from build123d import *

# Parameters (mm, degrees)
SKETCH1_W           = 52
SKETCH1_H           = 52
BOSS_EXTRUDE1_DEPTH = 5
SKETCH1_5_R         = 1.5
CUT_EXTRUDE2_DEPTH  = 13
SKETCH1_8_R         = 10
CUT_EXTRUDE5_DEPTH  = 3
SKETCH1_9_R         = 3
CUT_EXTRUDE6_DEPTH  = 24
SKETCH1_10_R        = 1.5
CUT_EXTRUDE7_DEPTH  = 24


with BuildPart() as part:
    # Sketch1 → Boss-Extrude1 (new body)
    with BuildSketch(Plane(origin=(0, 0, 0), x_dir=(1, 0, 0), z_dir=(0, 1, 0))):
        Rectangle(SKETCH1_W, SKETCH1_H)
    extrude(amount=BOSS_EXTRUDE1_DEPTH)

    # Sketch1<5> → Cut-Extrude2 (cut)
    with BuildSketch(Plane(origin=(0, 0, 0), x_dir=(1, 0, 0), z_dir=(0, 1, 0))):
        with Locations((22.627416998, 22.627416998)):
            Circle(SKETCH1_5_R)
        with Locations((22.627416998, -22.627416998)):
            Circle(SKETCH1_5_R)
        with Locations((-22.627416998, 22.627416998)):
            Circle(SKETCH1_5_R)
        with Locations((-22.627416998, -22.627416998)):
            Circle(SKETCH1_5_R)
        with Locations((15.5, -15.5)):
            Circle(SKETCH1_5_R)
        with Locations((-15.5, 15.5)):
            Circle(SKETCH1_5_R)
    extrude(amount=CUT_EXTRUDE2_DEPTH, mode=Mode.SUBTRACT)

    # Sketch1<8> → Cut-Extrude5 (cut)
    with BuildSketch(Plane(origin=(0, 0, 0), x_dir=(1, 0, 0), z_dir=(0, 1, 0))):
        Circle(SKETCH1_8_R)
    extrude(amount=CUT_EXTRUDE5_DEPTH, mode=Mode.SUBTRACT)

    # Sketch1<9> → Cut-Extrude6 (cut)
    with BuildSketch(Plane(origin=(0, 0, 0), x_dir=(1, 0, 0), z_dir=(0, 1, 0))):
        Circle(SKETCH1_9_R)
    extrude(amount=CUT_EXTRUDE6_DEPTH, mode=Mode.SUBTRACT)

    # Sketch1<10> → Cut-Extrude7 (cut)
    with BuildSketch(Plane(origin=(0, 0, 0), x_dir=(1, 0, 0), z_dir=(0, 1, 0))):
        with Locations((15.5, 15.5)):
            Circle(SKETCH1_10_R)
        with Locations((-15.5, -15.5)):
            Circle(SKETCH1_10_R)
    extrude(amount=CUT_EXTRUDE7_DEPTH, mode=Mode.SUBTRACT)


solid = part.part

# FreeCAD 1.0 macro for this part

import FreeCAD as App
import Part
import Sketcher
from FreeCAD import Vector
Q = App.Units.Quantity


def add_polygon(sketch, points):
    """Adds a closed chain of lines whose ends are joined by coincident constraints."""
    first, n = sketch.GeometryCount, len(points)
    for a, b in zip(points, points[1:] + points[:1]):
        sketch.addGeometry(Part.LineSegment(App.Vector(*a, 0), App.Vector(*b, 0)), False)
    for i in range(n):
        sketch.addConstraint(Sketcher.Constraint("Coincident", first + i, 2, first + (i + 1) % n, 1))

doc = App.newDocument("Part")
body = doc.addObject("PartDesign::Body", "Body")

# Sketch on XZ plane
sketch1 = doc.addObject("Sketcher::SketchObject", "Sketch")
body.addObject(sketch1)
sketch1.AttachmentSupport = (doc.XZ_Plane, [""])
sketch1.MapMode = "FlatFace"
add_polygon(sketch1, [(-26, -26), (-26, 26), (26, 26), (26, -26)])  # lines 0-3
sketch1.addConstraint([
    Sketcher.Constraint("Vertical", 0),
    Sketcher.Constraint("Horizontal", 1),
    Sketcher.Constraint("Vertical", 2),
    Sketcher.Constraint("Horizontal", 3),
    Sketcher.Constraint("Symmetric", 0, 2, 2, 2, -1, 1),
    Sketcher.Constraint("Equal", 3, 0),
    Sketcher.Constraint("DistanceX", 1, 1, 1, 2, Q("52 mm")),
])
pad1 = doc.addObject("PartDesign::Pad", "Pad")
body.addObject(pad1)
pad1.Profile = sketch1
pad1.Length = 5
pad1.Reversed = True

# Sketch on XZ plane
sketch2 = doc.addObject("Sketcher::SketchObject", "Sketch001")
body.addObject(sketch2)
sketch2.AttachmentSupport = (doc.XZ_Plane, [""])
sketch2.MapMode = "FlatFace"
sketch2.addGeometry([
    Part.Circle(Vector(22.627417, -22.627417, 0), Vector(0, 0, 1), 1.5),  # 0
    Part.Circle(Vector(22.627417, 22.627417, 0), Vector(0, 0, 1), 1.5),  # 1
    Part.Circle(Vector(-22.627417, -22.627417, 0), Vector(0, 0, 1), 1.5),  # 2
    Part.Circle(Vector(-22.627417, 22.627417, 0), Vector(0, 0, 1), 1.5),  # 3
    Part.Circle(Vector(15.5, 15.5, 0), Vector(0, 0, 1), 1.5),  # 4
    Part.Circle(Vector(-15.5, -15.5, 0), Vector(0, 0, 1), 1.5),  # 5
], False)
sketch2.addConstraint([
    Sketcher.Constraint("Equal", 0, 1),
    Sketcher.Constraint("Equal", 1, 2),
    Sketcher.Constraint("Equal", 2, 3),
    Sketcher.Constraint("Equal", 3, 4),
    Sketcher.Constraint("Equal", 4, 5),
    Sketcher.Constraint("Symmetric", 1, 3, 2, 3, -1, 1),
    Sketcher.Constraint("Symmetric", 0, 3, 3, 3, -1, 1),
    Sketcher.Constraint("Symmetric", 4, 3, 5, 3, -1, 1),
    Sketcher.Constraint("Symmetric", 0, 3, 2, 3, -2),
    Sketcher.Constraint("Diameter", 0, Q("3 mm")),
    Sketcher.Constraint("DistanceX", 5, 3, 4, 3, Q("31 mm")),
    Sketcher.Constraint("DistanceY", 5, 3, 4, 3, Q("31 mm")),
    Sketcher.Constraint("DistanceX", -1, 1, 0, 3, Q("22.627417 mm")),
    Sketcher.Constraint("DistanceY", 0, 3, -1, 1, Q("22.627417 mm")),
])
pocket1 = doc.addObject("PartDesign::Pocket", "Pocket")
body.addObject(pocket1)
pocket1.Profile = sketch2
pocket1.Length = 13

# Sketch on XZ plane
sketch3 = doc.addObject("Sketcher::SketchObject", "Sketch002")
body.addObject(sketch3)
sketch3.AttachmentSupport = (doc.XZ_Plane, [""])
sketch3.MapMode = "FlatFace"
sketch3.addGeometry(Part.Circle(Vector(0, 0, 0), Vector(0, 0, 1), 10), False)
sketch3.addConstraint([
    Sketcher.Constraint("Coincident", 0, 3, -1, 1),
    Sketcher.Constraint("Diameter", 0, Q("20 mm")),
])
pocket2 = doc.addObject("PartDesign::Pocket", "Pocket001")
body.addObject(pocket2)
pocket2.Profile = sketch3
pocket2.Length = 3

# Sketch on XZ plane
sketch4 = doc.addObject("Sketcher::SketchObject", "Sketch003")
body.addObject(sketch4)
sketch4.AttachmentSupport = (doc.XZ_Plane, [""])
sketch4.MapMode = "FlatFace"
sketch4.addGeometry(Part.Circle(Vector(0, 0, 0), Vector(0, 0, 1), 3), False)
sketch4.addConstraint([
    Sketcher.Constraint("Coincident", 0, 3, -1, 1),
    Sketcher.Constraint("Diameter", 0, Q("6 mm")),
])
pocket3 = doc.addObject("PartDesign::Pocket", "Pocket002")
body.addObject(pocket3)
pocket3.Profile = sketch4
pocket3.Length = 24

# Sketch on XZ plane
sketch5 = doc.addObject("Sketcher::SketchObject", "Sketch004")
body.addObject(sketch5)
sketch5.AttachmentSupport = (doc.XZ_Plane, [""])
sketch5.MapMode = "FlatFace"
sketch5.addGeometry([
    Part.Circle(Vector(15.5, -15.5, 0), Vector(0, 0, 1), 1.5),
    Part.Circle(Vector(-15.5, 15.5, 0), Vector(0, 0, 1), 1.5),
], False)
sketch5.addConstraint([
    Sketcher.Constraint("Equal", 0, 1),
    Sketcher.Constraint("Symmetric", 0, 3, 1, 3, -1, 1),
    Sketcher.Constraint("Diameter", 0, Q("3 mm")),
    Sketcher.Constraint("DistanceX", 1, 3, 0, 3, Q("31 mm")),
    Sketcher.Constraint("DistanceY", 0, 3, 1, 3, Q("31 mm")),
])
pocket4 = doc.addObject("PartDesign::Pocket", "Pocket003")
body.addObject(pocket4)
pocket4.Profile = sketch5
pocket4.Length = 24

doc.recompute()
